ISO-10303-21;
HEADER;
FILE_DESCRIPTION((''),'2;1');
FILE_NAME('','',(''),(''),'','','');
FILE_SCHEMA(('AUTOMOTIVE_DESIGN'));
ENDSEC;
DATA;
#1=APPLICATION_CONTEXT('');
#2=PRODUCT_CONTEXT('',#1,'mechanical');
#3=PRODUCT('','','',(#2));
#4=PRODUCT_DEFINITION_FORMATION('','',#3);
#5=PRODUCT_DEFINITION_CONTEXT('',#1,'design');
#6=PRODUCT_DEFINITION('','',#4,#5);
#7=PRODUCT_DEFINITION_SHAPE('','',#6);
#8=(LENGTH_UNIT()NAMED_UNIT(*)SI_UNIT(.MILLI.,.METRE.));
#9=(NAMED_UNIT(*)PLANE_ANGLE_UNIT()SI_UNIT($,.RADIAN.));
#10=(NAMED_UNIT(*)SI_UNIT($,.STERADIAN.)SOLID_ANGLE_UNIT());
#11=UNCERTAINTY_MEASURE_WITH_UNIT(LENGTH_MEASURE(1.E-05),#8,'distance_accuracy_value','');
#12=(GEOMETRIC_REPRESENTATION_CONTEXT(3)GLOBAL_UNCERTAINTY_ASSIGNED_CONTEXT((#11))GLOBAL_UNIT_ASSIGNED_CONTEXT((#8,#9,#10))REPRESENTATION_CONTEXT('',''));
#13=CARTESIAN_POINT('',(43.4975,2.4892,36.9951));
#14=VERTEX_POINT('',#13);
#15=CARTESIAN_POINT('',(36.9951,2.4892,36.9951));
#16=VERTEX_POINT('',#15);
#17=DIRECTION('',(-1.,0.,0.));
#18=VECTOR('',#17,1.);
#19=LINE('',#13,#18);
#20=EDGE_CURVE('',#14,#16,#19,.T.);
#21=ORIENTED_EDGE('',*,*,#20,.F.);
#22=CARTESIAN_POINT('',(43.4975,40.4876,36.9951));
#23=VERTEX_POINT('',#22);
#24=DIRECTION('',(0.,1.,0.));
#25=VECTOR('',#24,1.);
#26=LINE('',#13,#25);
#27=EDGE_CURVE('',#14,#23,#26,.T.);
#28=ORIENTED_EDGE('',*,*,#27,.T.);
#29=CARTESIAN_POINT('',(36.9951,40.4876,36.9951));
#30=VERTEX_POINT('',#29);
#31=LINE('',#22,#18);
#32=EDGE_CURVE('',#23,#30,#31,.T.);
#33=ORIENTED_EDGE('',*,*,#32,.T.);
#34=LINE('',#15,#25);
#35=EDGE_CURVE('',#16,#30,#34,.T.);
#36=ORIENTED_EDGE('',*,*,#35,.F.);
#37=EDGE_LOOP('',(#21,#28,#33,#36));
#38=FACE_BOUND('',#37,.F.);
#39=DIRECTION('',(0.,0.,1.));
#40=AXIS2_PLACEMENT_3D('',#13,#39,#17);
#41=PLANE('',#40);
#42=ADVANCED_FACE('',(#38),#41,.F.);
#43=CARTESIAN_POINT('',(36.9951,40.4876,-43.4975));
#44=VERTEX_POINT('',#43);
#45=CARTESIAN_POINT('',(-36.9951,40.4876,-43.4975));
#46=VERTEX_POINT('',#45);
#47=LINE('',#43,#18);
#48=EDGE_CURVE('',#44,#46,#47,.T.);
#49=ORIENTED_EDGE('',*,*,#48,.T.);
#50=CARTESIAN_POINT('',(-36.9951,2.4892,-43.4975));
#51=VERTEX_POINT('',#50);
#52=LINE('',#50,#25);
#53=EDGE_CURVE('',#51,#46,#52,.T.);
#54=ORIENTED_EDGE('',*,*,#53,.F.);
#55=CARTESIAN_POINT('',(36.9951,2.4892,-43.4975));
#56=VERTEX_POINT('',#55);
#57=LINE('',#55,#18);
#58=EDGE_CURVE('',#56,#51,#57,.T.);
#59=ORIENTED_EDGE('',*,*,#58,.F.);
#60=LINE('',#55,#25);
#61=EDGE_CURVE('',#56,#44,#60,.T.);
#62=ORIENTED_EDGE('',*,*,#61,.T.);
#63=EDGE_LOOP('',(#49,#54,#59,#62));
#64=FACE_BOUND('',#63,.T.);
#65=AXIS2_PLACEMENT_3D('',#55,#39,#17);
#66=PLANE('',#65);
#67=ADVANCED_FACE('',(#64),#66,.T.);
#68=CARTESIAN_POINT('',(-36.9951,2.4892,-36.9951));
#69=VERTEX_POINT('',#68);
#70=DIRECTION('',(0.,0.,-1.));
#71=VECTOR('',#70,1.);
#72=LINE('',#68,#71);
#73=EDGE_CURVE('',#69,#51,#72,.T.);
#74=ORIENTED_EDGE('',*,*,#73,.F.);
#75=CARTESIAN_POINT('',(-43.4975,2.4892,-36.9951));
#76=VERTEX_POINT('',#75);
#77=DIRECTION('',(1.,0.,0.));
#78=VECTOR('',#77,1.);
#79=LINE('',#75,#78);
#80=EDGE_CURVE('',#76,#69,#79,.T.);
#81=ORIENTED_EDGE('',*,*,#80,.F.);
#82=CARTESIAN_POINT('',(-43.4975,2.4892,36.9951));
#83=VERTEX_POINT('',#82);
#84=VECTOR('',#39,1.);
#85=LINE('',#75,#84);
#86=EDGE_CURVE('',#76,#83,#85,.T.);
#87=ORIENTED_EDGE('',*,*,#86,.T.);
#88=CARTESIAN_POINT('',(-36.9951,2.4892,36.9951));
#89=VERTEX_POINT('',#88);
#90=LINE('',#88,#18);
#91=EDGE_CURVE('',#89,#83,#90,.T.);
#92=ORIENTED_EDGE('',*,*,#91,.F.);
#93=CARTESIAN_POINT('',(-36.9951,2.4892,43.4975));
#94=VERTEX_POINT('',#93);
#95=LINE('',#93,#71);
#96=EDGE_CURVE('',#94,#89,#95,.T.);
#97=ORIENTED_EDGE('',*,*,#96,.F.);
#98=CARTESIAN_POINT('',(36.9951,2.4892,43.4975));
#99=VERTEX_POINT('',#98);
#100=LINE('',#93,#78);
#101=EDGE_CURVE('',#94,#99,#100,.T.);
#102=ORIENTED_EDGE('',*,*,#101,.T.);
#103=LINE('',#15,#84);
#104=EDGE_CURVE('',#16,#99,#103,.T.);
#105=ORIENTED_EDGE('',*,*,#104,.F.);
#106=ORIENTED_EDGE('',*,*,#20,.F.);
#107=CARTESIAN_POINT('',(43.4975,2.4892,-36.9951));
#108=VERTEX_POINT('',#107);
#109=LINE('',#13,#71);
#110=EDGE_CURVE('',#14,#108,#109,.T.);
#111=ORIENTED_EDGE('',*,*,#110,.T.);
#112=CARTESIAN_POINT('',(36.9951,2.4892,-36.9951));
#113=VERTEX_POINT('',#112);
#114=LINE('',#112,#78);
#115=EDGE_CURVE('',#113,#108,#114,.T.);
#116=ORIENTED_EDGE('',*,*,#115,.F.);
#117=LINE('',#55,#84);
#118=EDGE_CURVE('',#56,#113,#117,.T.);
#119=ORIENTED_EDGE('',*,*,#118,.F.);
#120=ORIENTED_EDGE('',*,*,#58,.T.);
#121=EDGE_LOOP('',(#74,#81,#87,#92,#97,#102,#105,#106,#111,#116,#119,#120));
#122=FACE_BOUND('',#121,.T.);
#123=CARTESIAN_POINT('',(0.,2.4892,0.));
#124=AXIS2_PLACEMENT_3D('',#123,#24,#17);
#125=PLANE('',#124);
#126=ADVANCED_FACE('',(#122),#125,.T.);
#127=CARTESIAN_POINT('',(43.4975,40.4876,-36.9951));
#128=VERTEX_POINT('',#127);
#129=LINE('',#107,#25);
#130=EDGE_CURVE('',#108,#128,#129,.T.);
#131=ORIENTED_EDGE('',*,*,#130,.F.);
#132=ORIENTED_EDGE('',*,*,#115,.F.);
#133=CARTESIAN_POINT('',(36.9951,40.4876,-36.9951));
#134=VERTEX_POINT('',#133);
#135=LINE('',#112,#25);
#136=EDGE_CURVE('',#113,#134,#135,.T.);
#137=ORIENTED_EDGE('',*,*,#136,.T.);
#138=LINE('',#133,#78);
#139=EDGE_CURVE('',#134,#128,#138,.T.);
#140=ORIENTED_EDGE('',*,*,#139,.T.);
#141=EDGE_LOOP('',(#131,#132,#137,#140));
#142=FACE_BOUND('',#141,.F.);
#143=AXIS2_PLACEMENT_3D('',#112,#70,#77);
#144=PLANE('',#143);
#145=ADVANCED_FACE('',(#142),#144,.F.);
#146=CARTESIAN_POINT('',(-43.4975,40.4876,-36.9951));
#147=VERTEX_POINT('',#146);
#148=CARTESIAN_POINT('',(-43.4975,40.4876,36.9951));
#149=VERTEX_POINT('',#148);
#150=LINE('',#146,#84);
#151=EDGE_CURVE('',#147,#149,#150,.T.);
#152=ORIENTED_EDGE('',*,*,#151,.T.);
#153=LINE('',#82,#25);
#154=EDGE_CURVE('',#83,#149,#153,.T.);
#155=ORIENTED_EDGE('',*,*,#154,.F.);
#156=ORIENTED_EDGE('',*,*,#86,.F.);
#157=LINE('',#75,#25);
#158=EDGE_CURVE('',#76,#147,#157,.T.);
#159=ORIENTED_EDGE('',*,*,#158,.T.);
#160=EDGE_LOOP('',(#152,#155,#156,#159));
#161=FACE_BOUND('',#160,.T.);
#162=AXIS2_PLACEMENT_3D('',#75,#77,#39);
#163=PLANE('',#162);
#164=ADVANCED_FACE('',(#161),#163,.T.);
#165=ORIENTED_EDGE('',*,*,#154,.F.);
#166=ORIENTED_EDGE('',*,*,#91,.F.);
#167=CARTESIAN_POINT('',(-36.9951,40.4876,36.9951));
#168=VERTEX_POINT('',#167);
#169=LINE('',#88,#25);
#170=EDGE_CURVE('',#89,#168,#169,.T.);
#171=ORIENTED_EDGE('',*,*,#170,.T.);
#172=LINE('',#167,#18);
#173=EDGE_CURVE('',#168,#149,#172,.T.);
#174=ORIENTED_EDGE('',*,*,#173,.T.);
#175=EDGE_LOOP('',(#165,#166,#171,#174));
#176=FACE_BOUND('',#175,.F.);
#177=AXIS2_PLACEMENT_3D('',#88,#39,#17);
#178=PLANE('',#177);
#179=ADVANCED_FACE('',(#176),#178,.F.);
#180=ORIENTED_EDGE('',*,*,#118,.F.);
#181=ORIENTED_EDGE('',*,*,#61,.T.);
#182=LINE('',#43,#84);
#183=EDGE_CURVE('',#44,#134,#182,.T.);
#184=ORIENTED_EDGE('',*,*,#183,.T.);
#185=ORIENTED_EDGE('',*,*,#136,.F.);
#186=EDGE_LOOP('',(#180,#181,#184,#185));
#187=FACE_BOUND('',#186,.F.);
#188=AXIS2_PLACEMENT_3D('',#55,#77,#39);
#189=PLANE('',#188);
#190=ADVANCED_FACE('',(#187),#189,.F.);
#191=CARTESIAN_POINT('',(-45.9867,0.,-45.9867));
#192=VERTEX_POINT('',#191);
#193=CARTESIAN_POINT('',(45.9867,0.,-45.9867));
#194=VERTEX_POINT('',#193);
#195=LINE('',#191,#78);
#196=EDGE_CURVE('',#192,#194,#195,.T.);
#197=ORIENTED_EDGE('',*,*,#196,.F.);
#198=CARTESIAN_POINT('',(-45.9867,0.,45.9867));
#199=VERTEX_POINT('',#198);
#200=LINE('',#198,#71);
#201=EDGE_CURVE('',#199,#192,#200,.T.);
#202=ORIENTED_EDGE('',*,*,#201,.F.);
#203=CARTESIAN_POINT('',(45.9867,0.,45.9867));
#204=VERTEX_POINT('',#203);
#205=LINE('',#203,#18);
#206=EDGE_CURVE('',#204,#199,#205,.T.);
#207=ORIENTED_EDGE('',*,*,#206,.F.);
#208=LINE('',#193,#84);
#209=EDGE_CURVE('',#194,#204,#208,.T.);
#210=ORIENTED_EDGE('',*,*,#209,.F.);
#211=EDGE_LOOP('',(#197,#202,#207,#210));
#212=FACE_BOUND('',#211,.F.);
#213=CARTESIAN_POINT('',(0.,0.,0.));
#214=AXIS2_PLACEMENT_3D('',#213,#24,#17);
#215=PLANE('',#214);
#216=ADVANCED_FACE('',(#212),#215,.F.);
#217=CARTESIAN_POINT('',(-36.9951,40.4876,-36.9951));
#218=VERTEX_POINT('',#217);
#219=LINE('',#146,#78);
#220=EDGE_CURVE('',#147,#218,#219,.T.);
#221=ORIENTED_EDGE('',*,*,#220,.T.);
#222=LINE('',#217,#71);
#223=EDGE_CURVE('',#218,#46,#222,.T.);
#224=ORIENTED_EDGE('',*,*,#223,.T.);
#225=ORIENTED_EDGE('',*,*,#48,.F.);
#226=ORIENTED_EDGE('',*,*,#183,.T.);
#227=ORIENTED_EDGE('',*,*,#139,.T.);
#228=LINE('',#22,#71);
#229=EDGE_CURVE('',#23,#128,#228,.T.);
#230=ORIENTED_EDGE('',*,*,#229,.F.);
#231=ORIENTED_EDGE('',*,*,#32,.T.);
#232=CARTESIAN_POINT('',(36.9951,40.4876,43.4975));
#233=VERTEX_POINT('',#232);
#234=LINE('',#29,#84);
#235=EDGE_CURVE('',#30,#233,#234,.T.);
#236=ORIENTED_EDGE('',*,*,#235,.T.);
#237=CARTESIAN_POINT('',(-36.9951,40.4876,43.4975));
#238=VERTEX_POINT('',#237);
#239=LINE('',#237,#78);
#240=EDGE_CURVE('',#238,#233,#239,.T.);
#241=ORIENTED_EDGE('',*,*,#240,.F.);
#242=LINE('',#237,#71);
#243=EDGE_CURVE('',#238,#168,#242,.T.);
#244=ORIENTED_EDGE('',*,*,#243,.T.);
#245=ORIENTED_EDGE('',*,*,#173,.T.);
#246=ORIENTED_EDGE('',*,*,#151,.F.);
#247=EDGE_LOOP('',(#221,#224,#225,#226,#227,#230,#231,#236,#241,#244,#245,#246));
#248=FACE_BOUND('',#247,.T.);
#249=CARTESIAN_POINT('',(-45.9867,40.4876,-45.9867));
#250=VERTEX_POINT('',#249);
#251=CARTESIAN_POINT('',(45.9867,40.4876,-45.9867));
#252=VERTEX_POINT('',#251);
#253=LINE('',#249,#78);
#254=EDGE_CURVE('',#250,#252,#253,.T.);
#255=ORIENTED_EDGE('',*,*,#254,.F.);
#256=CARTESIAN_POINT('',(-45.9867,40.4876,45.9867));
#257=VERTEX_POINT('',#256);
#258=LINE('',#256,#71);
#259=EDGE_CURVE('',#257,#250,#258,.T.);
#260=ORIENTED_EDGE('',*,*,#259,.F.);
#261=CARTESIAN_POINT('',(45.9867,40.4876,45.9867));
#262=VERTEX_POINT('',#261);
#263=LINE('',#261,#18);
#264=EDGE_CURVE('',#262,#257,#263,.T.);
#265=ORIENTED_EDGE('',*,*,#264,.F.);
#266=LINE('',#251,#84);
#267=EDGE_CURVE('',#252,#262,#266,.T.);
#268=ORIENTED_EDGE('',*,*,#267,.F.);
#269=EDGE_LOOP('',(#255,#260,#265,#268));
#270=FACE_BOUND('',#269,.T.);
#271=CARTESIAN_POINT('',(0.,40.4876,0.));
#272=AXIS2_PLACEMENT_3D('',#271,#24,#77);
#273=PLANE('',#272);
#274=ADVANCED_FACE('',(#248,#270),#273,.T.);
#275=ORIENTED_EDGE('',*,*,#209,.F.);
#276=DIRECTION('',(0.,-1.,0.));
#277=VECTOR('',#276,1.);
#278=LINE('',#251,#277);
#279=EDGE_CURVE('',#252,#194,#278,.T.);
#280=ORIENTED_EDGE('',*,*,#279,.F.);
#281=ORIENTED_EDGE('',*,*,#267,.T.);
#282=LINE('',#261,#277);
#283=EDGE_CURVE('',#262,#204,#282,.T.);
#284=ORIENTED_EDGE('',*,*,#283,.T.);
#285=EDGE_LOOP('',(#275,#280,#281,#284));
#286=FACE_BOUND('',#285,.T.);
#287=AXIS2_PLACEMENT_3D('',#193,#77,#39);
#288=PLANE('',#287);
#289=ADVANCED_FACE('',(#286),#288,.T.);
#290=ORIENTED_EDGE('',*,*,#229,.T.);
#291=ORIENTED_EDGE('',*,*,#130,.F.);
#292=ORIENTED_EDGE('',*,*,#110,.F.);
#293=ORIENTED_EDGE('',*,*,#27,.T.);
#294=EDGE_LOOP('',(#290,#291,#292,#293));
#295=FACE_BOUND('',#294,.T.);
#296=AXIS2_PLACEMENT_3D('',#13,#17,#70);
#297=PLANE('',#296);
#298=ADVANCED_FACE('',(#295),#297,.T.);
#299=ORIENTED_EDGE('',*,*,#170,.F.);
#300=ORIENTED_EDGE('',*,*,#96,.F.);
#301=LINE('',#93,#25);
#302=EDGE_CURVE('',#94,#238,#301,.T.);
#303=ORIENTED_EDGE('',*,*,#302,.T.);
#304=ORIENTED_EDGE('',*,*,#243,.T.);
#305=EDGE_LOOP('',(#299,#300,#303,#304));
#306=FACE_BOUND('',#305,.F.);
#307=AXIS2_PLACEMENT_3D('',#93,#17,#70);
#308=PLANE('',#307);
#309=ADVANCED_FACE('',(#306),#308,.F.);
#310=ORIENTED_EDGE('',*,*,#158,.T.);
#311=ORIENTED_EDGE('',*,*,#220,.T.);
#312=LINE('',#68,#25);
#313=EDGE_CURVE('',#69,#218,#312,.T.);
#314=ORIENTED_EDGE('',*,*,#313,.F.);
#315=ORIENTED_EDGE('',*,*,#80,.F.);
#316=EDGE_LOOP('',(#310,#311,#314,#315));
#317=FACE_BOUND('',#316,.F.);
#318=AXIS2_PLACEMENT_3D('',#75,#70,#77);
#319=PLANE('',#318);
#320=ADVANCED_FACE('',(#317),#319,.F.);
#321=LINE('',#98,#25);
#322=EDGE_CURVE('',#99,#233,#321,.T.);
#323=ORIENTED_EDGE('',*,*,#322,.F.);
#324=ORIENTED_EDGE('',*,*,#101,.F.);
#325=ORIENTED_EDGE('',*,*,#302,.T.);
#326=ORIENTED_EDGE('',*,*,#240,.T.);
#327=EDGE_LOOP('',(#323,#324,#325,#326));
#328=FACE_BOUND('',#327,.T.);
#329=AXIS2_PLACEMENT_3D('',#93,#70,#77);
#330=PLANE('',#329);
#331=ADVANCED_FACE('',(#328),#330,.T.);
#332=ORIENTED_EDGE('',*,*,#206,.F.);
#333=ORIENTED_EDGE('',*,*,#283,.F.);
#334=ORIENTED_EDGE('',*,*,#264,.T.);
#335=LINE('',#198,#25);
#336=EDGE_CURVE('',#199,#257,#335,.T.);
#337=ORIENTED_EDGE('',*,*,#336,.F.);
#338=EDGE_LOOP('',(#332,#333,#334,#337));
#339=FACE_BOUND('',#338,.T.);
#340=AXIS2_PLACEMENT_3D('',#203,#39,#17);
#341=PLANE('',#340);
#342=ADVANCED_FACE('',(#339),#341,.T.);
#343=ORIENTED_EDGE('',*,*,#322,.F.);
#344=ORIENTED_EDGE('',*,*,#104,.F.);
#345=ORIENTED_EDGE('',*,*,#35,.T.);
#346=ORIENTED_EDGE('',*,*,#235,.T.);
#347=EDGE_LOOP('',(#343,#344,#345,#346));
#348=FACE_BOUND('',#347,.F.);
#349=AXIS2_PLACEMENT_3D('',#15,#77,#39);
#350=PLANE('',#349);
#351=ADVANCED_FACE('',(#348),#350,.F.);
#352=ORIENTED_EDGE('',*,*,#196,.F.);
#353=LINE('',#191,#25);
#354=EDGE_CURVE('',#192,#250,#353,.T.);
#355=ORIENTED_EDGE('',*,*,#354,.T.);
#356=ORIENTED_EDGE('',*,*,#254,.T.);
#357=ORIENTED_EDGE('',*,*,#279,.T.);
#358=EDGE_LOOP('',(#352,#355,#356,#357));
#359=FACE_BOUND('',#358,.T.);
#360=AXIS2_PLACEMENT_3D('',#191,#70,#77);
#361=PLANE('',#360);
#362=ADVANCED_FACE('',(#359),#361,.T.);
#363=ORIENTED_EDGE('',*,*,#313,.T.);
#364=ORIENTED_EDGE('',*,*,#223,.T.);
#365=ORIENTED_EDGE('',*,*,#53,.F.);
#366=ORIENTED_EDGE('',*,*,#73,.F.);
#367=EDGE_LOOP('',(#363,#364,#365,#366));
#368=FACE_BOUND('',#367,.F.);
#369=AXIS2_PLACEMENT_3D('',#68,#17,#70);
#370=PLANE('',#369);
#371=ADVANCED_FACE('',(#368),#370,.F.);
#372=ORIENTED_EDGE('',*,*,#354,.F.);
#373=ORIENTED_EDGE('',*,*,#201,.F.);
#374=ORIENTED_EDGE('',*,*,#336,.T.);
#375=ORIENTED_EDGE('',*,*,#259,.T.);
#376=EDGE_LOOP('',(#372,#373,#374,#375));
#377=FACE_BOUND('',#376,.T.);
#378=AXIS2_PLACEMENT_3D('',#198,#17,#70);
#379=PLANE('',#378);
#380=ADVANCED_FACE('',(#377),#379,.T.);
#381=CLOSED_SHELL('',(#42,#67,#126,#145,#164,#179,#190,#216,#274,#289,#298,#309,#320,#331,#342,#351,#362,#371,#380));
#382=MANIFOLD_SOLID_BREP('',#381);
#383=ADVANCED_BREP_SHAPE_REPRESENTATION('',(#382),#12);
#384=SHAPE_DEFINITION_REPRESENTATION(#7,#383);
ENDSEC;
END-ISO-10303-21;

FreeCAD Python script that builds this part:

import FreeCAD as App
import Part
import Sketcher

V = App.Vector
Q = App.Units.Quantity


def add_polygon(sketch, points):
    """Adds a closed chain of lines whose ends are joined by coincident constraints."""
    first, n = sketch.GeometryCount, len(points)
    for a, b in zip(points, points[1:] + points[:1]):
        sketch.addGeometry(Part.LineSegment(App.Vector(*a, 0), App.Vector(*b, 0)), False)
    for i in range(n):
        sketch.addConstraint(Sketcher.Constraint("Coincident", first + i, 2, first + (i + 1) % n, 1))

doc = App.newDocument("Part")
body = doc.addObject("PartDesign::Body", "Body")

sketch1 = body.newObject("Sketcher::SketchObject", "Sketch")
sketch1.AttachmentSupport = (doc.getObject("XZ_Plane"), [""])
sketch1.MapMode = "FlatFace"
add_polygon(sketch1, [(45.9867, -45.9867), (-45.9867, -45.9867), (-45.9867, 45.9867), (45.9867, 45.9867)])
sketch1.addConstraint(Sketcher.Constraint("Horizontal", 0))
sketch1.addConstraint(Sketcher.Constraint("Vertical", 1))
sketch1.addConstraint(Sketcher.Constraint("Horizontal", 2))
sketch1.addConstraint(Sketcher.Constraint("Vertical", 3))
sketch1.addConstraint(Sketcher.Constraint("Symmetric", 0, 2, 2, 2, -1, 1))
sketch1.addConstraint(Sketcher.Constraint("Equal", 2, 1))
sketch1.addConstraint(Sketcher.Constraint("DistanceX", 0, 2, 0, 1, Q("3.621 in")))
pad1 = body.newObject("PartDesign::Pad", "Pad")
pad1.Profile = sketch1
pad1.Length = Q("0.098 in")
pad1.Reversed = True

sketch2 = body.newObject("Sketcher::SketchObject", "Sketch001")
sketch2.AttachmentSupport = (doc.getObject("XZ_Plane"), [""])
sketch2.MapMode = "FlatFace"
sketch2.AttachmentOffset = App.Placement(V(0, 0, -0.098 * 25.4), App.Rotation())
add_polygon(sketch2, [(-45.9867, -45.9867), (-45.9867, 45.9867), (45.9867, 45.9867), (45.9867, -45.9867)])
add_polygon(sketch2, [(36.9951, 43.4975), (-36.9951, 43.4975), (-36.9951, 36.9951), (-43.4975, 36.9951), (-43.4975, -36.9951), (-36.9951, -36.9951), (-36.9951, -43.4975), (36.9951, -43.4975), (36.9951, -36.9951), (43.4975, -36.9951), (43.4975, 36.9951), (36.9951, 36.9951)])
sketch2.addConstraint(Sketcher.Constraint("Vertical", 0))
sketch2.addConstraint(Sketcher.Constraint("Horizontal", 1))
sketch2.addConstraint(Sketcher.Constraint("Vertical", 2))
sketch2.addConstraint(Sketcher.Constraint("Horizontal", 3))
sketch2.addConstraint(Sketcher.Constraint("Horizontal", 4))
sketch2.addConstraint(Sketcher.Constraint("Vertical", 5))
sketch2.addConstraint(Sketcher.Constraint("Horizontal", 6))
sketch2.addConstraint(Sketcher.Constraint("Vertical", 7))
sketch2.addConstraint(Sketcher.Constraint("Horizontal", 8))
sketch2.addConstraint(Sketcher.Constraint("Vertical", 9))
sketch2.addConstraint(Sketcher.Constraint("Horizontal", 10))
sketch2.addConstraint(Sketcher.Constraint("Vertical", 11))
sketch2.addConstraint(Sketcher.Constraint("Horizontal", 12))
sketch2.addConstraint(Sketcher.Constraint("Vertical", 13))
sketch2.addConstraint(Sketcher.Constraint("Horizontal", 14))
sketch2.addConstraint(Sketcher.Constraint("Vertical", 15))
sketch2.addConstraint(Sketcher.Constraint("Symmetric", 0, 2, 2, 2, -1, 1))
sketch2.addConstraint(Sketcher.Constraint("Symmetric", 4, 2, 10, 2, -1, 1))
sketch2.addConstraint(Sketcher.Constraint("Symmetric", 6, 2, 12, 2, -1, 1))
sketch2.addConstraint(Sketcher.Constraint("Symmetric", 8, 2, 14, 2, -1, 1))
sketch2.addConstraint(Sketcher.Constraint("Symmetric", 8, 2, 11, 2, -2))
sketch2.addConstraint(Sketcher.Constraint("Equal", 3, 0))
sketch2.addConstraint(Sketcher.Constraint("Equal", 14, 5))
sketch2.addConstraint(Sketcher.Constraint("Equal", 10, 7))
sketch2.addConstraint(Sketcher.Constraint("DistanceX", 0, 2, 4, 2, Q("0.354 in")))
sketch2.addConstraint(Sketcher.Constraint("DistanceX", 1, 1, 1, 2, Q("3.621 in")))
sketch2.addConstraint(Sketcher.Constraint("DistanceX", 6, 2, 6, 1, Q("0.256 in")))
pad2 = body.newObject("PartDesign::Pad", "Pad001")
pad2.Profile = sketch2
pad2.Length = Q("1.496 in")
pad2.Reversed = True

doc.recompute()
